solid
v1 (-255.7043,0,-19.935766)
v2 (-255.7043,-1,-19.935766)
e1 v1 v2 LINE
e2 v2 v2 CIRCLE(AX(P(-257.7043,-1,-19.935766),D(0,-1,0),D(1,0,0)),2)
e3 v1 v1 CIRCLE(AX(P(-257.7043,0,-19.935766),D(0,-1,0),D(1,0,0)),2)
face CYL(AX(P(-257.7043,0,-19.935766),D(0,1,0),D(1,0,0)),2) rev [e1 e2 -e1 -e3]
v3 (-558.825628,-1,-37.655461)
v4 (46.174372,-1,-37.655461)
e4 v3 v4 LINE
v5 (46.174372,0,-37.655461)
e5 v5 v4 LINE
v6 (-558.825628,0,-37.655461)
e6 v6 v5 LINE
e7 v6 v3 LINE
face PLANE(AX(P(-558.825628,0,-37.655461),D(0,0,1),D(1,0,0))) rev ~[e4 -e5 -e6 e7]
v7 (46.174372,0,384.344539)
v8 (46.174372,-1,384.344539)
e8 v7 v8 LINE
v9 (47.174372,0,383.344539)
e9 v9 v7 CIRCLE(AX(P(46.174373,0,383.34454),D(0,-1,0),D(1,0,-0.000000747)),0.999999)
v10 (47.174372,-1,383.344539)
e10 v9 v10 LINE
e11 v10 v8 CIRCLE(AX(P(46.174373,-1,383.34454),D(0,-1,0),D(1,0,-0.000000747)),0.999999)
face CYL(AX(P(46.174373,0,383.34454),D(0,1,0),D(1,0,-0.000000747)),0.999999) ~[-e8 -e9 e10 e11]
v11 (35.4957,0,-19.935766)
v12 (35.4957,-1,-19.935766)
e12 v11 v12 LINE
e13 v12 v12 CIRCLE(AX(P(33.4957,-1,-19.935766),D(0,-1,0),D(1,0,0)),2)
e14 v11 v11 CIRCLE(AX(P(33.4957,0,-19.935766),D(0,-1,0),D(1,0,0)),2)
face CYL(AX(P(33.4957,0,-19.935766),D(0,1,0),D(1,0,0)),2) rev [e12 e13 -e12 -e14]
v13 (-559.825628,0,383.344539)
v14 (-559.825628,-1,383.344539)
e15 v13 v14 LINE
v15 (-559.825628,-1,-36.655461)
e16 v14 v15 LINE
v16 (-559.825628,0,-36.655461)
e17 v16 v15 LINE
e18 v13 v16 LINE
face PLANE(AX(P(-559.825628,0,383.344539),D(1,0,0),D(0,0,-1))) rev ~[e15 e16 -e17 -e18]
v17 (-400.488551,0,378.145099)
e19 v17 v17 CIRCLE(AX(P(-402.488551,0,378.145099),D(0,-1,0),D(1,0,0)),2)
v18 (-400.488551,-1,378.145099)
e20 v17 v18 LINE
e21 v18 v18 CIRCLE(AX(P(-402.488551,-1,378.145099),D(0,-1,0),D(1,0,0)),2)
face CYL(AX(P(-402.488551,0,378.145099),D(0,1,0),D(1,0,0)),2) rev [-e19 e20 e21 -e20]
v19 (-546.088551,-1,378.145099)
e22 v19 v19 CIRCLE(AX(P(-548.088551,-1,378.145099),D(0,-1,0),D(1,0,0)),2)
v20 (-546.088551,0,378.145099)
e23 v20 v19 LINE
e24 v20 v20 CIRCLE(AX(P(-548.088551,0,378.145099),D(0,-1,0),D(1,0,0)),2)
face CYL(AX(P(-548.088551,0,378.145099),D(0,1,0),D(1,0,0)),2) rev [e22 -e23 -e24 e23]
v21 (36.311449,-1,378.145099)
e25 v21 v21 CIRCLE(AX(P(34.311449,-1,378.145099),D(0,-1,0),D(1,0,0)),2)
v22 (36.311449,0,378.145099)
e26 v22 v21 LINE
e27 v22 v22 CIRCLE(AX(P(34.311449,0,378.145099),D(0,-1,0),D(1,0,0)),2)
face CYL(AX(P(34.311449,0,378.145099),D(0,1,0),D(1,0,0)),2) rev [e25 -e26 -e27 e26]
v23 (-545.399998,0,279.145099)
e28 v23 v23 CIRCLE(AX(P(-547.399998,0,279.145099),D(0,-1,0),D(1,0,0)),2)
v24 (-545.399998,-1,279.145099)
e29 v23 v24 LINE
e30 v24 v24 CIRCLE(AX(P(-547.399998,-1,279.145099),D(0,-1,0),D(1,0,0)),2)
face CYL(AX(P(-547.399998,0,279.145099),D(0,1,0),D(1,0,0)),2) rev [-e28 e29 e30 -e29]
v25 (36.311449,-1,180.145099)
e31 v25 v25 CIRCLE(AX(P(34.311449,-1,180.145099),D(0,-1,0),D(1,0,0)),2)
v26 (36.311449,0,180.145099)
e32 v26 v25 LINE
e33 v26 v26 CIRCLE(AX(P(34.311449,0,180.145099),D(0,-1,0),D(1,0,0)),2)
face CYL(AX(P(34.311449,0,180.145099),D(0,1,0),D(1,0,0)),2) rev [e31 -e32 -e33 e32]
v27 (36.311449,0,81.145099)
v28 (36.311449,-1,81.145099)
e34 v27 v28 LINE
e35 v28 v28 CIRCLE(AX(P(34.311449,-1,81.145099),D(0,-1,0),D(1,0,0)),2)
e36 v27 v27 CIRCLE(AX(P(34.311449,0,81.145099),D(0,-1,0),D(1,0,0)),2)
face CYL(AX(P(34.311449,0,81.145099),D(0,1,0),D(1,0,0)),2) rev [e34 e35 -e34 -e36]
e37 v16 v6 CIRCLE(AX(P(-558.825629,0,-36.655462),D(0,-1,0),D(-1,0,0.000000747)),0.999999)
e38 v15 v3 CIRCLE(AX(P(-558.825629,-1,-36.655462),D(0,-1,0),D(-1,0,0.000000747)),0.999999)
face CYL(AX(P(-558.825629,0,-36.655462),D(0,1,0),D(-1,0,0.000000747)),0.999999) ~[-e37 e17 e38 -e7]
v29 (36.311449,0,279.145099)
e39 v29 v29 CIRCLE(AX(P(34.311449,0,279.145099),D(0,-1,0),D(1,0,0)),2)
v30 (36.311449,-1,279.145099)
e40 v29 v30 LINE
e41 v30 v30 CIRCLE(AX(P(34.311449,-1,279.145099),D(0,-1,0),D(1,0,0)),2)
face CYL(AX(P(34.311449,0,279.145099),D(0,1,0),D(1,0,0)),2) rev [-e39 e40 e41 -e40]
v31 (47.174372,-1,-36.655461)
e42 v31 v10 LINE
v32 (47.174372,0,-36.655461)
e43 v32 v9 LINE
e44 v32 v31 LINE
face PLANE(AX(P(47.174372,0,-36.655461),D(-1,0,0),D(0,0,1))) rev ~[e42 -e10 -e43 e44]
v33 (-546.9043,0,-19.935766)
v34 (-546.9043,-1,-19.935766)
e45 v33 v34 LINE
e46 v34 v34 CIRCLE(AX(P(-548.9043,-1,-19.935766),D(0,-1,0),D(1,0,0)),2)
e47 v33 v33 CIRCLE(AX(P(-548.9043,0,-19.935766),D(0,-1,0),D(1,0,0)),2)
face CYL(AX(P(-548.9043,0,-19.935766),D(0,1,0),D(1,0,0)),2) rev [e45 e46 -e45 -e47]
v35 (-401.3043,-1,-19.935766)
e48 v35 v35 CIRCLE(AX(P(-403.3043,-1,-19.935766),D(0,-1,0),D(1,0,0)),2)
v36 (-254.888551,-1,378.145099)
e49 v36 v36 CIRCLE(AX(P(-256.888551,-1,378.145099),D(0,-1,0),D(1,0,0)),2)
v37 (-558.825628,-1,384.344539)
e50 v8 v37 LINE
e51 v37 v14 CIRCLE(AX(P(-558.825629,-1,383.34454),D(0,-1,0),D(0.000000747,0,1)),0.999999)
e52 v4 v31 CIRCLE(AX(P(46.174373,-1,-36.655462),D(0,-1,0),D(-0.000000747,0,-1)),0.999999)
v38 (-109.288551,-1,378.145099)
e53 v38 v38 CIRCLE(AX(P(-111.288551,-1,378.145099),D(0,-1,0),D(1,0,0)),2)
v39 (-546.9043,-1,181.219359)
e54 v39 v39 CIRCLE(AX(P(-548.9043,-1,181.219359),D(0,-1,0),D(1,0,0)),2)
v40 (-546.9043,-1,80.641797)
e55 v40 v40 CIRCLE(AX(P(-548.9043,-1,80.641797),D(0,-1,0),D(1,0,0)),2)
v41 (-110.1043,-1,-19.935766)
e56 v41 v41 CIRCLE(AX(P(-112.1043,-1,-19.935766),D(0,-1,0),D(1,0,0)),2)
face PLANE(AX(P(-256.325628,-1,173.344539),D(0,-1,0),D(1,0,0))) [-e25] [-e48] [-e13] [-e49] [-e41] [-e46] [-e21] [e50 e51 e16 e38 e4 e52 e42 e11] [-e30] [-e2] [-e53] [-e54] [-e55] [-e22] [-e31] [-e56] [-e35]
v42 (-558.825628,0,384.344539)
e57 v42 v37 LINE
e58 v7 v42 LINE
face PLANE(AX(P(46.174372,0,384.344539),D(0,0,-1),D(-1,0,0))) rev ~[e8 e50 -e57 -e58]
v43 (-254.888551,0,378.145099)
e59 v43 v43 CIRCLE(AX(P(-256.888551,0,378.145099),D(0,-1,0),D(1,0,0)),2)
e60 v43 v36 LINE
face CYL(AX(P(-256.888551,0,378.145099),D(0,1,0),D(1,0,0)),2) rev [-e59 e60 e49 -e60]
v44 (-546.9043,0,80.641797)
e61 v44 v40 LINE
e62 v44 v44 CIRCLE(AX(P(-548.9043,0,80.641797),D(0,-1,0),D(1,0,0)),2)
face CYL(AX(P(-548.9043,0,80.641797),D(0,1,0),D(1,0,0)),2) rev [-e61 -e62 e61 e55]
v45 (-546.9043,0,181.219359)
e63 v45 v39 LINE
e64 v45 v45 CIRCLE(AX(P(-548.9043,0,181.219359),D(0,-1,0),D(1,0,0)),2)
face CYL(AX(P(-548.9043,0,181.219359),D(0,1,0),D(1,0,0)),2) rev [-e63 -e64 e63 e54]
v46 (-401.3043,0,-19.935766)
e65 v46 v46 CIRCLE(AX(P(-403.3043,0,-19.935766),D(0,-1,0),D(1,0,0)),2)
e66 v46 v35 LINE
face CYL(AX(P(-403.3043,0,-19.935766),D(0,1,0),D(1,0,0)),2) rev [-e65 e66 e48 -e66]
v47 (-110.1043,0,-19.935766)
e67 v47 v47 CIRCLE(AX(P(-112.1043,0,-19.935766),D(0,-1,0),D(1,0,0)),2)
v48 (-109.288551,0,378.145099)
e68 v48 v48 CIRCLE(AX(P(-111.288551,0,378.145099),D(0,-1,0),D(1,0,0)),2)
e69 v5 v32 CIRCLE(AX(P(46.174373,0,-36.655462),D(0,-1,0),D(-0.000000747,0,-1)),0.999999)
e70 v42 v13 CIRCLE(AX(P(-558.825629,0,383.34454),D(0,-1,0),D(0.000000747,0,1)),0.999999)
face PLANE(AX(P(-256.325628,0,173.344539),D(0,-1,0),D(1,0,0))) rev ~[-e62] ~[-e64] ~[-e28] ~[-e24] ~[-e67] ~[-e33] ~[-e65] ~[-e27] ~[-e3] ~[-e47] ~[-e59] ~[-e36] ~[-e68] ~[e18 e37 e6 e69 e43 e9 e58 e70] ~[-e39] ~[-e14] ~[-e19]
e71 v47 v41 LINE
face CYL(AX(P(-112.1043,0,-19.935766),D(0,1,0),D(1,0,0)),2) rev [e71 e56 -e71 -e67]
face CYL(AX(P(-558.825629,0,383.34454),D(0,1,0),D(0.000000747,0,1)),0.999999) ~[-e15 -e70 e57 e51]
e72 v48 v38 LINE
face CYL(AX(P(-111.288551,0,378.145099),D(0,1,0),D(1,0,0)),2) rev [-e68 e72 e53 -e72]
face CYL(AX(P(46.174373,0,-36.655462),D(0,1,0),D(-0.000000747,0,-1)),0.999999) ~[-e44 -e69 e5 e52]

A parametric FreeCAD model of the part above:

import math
import FreeCAD as App
import Part
import Sketcher

doc = App.newDocument("Part")
body = doc.addObject("PartDesign::Body", "Body")

# Sketch on XZ plane
sketch1 = body.newObject("Sketcher::SketchObject", "Sketch")
sketch1.AttachmentSupport = (doc.getObject("XZ_Plane"), [""])
sketch1.MapMode = "FlatFace"
sketch1.addGeometry([
    Part.LineSegment(App.Vector(46.2, 384.3, 0), App.Vector(-558.8, 384.3, 0)),  # 0
    Part.ArcOfCircle(Part.Circle(App.Vector(-558.8, 383.3, 0), App.Vector(0, 0, 1), 1), math.radians(90), math.radians(180)),  # 1
    Part.LineSegment(App.Vector(-559.8, 383.3, 0), App.Vector(-559.8, -36.7, 0)),  # 2
    Part.ArcOfCircle(Part.Circle(App.Vector(-558.8, -36.7, 0), App.Vector(0, 0, 1), 1), math.radians(180), math.radians(270)),  # 3
    Part.LineSegment(App.Vector(-558.8, -37.7, 0), App.Vector(46.2, -37.7, 0)),  # 4
    Part.ArcOfCircle(Part.Circle(App.Vector(46.2, -36.7, 0), App.Vector(0, 0, 1), 1), math.radians(-90), math.radians(0)),  # 5
    Part.LineSegment(App.Vector(47.2, -36.7, 0), App.Vector(47.2, 383.3, 0)),  # 6
    Part.ArcOfCircle(Part.Circle(App.Vector(46.2, 383.3, 0), App.Vector(0, 0, 1), 1), math.radians(0), math.radians(90)),  # 7
    Part.Circle(App.Vector(-548.9, -19.9, 0), App.Vector(0, 0, 1), 2),  # 8
    Part.Circle(App.Vector(-403.3, -19.9, 0), App.Vector(0, 0, 1), 2),  # 9
    Part.Circle(App.Vector(-257.7, -19.9, 0), App.Vector(0, 0, 1), 2),  # 10
    Part.Circle(App.Vector(-548.9, 80.6, 0), App.Vector(0, 0, 1), 2),  # 11
    Part.Circle(App.Vector(-112.1, -19.9, 0), App.Vector(0, 0, 1), 2),  # 12
    Part.Circle(App.Vector(33.5, -19.9, 0), App.Vector(0, 0, 1), 2),  # 13
    Part.Circle(App.Vector(34.3, 81.1, 0), App.Vector(0, 0, 1), 2),  # 14
    Part.Circle(App.Vector(-548.9, 181.2, 0), App.Vector(0, 0, 1), 2),  # 15
    Part.Circle(App.Vector(-547.4, 279.1, 0), App.Vector(0, 0, 1), 2),  # 16
    Part.Circle(App.Vector(-548.1, 378.1, 0), App.Vector(0, 0, 1), 2),  # 17
    Part.Circle(App.Vector(-402.5, 378.1, 0), App.Vector(0, 0, 1), 2),  # 18
    Part.Circle(App.Vector(34.3, 180.1, 0), App.Vector(0, 0, 1), 2),  # 19
    Part.Circle(App.Vector(34.3, 279.1, 0), App.Vector(0, 0, 1), 2),  # 20
    Part.Circle(App.Vector(-256.9, 378.1, 0), App.Vector(0, 0, 1), 2),  # 21
    Part.Circle(App.Vector(-111.3, 378.1, 0), App.Vector(0, 0, 1), 2),  # 22
    Part.Circle(App.Vector(34.3, 378.1, 0), App.Vector(0, 0, 1), 2),  # 23
], False)
sketch1.addConstraint([
    Sketcher.Constraint("Tangent", 0, 2, 1, 1),
    Sketcher.Constraint("Tangent", 1, 2, 2, 1),
    Sketcher.Constraint("Tangent", 2, 2, 3, 1),
    Sketcher.Constraint("Tangent", 3, 2, 4, 1),
    Sketcher.Constraint("Tangent", 4, 2, 5, 1),
    Sketcher.Constraint("Tangent", 5, 2, 6, 1),
    Sketcher.Constraint("Tangent", 6, 2, 7, 1),
    Sketcher.Constraint("Tangent", 7, 2, 0, 1),
    Sketcher.Constraint("Horizontal", 0),
    Sketcher.Constraint("Vertical", 2),
    Sketcher.Constraint("Horizontal", 4),
    Sketcher.Constraint("Vertical", 6),
    Sketcher.Constraint("Equal", 1, 3),
    Sketcher.Constraint("Equal", 3, 5),
    Sketcher.Constraint("Equal", 5, 7),
    Sketcher.Constraint("Equal", 8, 9),
    Sketcher.Constraint("Equal", 9, 10),
    Sketcher.Constraint("Equal", 10, 11),
    Sketcher.Constraint("Equal", 11, 12),
    Sketcher.Constraint("Equal", 12, 13),
    Sketcher.Constraint("Equal", 13, 14),
    Sketcher.Constraint("Equal", 14, 15),
    Sketcher.Constraint("Equal", 15, 16),
    Sketcher.Constraint("Equal", 16, 17),
    Sketcher.Constraint("Equal", 17, 18),
    Sketcher.Constraint("Equal", 18, 19),
    Sketcher.Constraint("Equal", 19, 20),
    Sketcher.Constraint("Equal", 20, 21),
    Sketcher.Constraint("Equal", 21, 22),
    Sketcher.Constraint("Equal", 22, 23),
    Sketcher.Constraint("Horizontal", 8, 3, 9, 3),
    Sketcher.Constraint("Horizontal", 9, 3, 10, 3),
    Sketcher.Constraint("Horizontal", 10, 3, 12, 3),
    Sketcher.Constraint("Horizontal", 12, 3, 13, 3),
    Sketcher.Constraint("Horizontal", 17, 3, 18, 3),
    Sketcher.Constraint("Horizontal", 16, 3, 20, 3),
    Sketcher.Constraint("Horizontal", 18, 3, 21, 3),
    Sketcher.Constraint("Horizontal", 21, 3, 22, 3),
    Sketcher.Constraint("Horizontal", 22, 3, 23, 3),
    Sketcher.Constraint("Vertical", 8, 3, 11, 3),
    Sketcher.Constraint("Vertical", 11, 3, 15, 3),
    Sketcher.Constraint("Vertical", 14, 3, 19, 3),
    Sketcher.Constraint("Vertical", 19, 3, 20, 3),
    Sketcher.Constraint("Vertical", 20, 3, 23, 3),
    Sketcher.Constraint("Diameter", 8, 4.0),
    Sketcher.Constraint("Radius", 1, 0.999999),
    Sketcher.Constraint("DistanceX", 0, 2, 0, 1, 605.0),
    Sketcher.Constraint("DistanceY", 2, 2, 2, 1, 420.0),
    Sketcher.Constraint("DistanceY", 16, 3, 17, 3, 99.0),
    Sketcher.Constraint("DistanceY", 14, 3, 19, 3, 99.0),
    Sketcher.Constraint("DistanceY", 19, 3, 20, 3, 99.0),
    Sketcher.Constraint("DistanceX", 16, 3, -1, 1, 547.399998),
    Sketcher.Constraint("DistanceX", 8, 3, 9, 3, 145.6),
    Sketcher.Constraint("DistanceX", 9, 3, 10, 3, 145.6),
    Sketcher.Constraint("DistanceX", 10, 3, 12, 3, 145.6),
    Sketcher.Constraint("DistanceX", 12, 3, 13, 3, 145.6),
    Sketcher.Constraint("DistanceX", 17, 3, 18, 3, 145.6),
    Sketcher.Constraint("DistanceX", 18, 3, 21, 3, 145.6),
    Sketcher.Constraint("DistanceX", 21, 3, 22, 3, 145.6),
    Sketcher.Constraint("DistanceX", 22, 3, 20, 3, 145.6),
    Sketcher.Constraint("DistanceX", 8, 3, -1, 1, 548.9043),
    Sketcher.Constraint("DistanceY", -1, 1, 14, 3, 81.145099),
    Sketcher.Constraint("DistanceY", 11, 3, 17, 3, 297.503302),
    Sketcher.Constraint("DistanceX", 1, 3, -1, 1, 558.825629),
    Sketcher.Constraint("DistanceY", -1, 1, 1, 3, 383.34454),
    Sketcher.Constraint("DistanceX", -1, 1, 14, 3, 34.311449),
    Sketcher.Constraint("DistanceY", -1, 1, 15, 3, 181.219359),
    Sketcher.Constraint("DistanceY", 8, 3, -1, 1, 19.935766),
])
pad1 = body.newObject("PartDesign::Pad", "Pad")
pad1.Profile = sketch1
pad1.Length = 1

doc.recompute()
